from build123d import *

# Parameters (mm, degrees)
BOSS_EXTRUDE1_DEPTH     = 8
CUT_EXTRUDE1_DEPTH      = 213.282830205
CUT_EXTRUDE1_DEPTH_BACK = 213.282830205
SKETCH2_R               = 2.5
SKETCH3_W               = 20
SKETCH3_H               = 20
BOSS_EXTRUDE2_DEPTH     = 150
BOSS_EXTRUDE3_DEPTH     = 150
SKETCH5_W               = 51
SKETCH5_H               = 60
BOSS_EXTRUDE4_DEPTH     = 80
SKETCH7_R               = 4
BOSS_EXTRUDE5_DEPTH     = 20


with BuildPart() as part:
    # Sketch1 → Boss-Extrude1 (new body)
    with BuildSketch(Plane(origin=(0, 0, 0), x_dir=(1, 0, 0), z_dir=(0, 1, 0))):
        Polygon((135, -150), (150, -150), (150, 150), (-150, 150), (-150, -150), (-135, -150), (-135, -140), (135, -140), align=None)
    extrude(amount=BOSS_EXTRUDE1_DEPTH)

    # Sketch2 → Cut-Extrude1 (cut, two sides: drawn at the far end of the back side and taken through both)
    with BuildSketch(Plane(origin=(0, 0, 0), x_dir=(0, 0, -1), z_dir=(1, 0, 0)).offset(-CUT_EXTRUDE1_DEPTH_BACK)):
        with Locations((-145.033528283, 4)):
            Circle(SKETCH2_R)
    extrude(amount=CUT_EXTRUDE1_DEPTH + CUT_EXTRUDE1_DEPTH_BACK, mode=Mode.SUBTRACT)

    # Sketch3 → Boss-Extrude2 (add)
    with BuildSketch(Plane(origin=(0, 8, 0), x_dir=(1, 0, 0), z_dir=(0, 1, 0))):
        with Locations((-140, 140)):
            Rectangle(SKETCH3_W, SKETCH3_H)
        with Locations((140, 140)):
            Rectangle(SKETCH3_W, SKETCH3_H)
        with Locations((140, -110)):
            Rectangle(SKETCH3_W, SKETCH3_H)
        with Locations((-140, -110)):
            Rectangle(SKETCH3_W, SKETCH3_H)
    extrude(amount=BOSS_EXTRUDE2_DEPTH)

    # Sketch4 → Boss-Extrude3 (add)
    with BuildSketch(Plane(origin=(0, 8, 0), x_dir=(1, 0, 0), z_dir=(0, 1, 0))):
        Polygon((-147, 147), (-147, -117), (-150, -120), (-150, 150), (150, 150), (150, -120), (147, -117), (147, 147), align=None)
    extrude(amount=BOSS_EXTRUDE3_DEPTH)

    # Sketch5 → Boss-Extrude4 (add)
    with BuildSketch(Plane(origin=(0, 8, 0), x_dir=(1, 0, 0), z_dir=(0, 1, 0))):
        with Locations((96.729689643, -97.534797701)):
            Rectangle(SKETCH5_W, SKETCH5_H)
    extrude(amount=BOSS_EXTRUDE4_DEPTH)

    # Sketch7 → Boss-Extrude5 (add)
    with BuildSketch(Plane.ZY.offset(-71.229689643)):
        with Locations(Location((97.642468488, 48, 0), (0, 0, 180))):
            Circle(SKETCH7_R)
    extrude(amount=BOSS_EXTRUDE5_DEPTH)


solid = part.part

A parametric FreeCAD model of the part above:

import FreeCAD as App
import Part
import Sketcher
Q = App.Units.Quantity


def add_polygon(sketch, points):
    """Adds a closed chain of lines whose ends are joined by coincident constraints."""
    first, n = sketch.GeometryCount, len(points)
    for a, b in zip(points, points[1:] + points[:1]):
        sketch.addGeometry(Part.LineSegment(App.Vector(*a, 0), App.Vector(*b, 0)), False)
    for i in range(n):
        sketch.addConstraint(Sketcher.Constraint("Coincident", first + i, 2, first + (i + 1) % n, 1))

doc = App.newDocument("Part")
params = doc.addObject("Spreadsheet::Sheet", "Params")
for row, (alias, value) in enumerate([
    ("sketch1_width", "15 mm"),
    ("sketch1_width2", "300 mm"),
    ("sketch1_height", "10 mm"),
    ("pad1_length", "8 mm"),
    ("sketch2_diameter", "5 mm"),
    ("sketch3_width", "20 mm"),
    ("pad2_length", "150 mm"),
    ("sketch4_width", "294 mm"),
    ("sketch4_width2", "300 mm"),
    ("sketch4_height", "264 mm"),
    ("sketch4_height2", "270 mm"),
    ("pad3_length", "150 mm"),
    ("sketch5_width", "51 mm"),
    ("sketch5_height", "60 mm"),
    ("pad4_length", "80 mm"),
    ("sketch6_diameter", "8 mm"),
    ("pad5_length", "20 mm"),
], start=1):
    params.set(f"A{row}", alias)
    params.set(f"B{row}", "=" + value)
    params.setAlias(f"B{row}", alias)

body = doc.addObject("PartDesign::Body", "Body")

sketch1 = doc.addObject("Sketcher::SketchObject", "Sketch")
body.addObject(sketch1)
sketch1.AttachmentSupport = (doc.XZ_Plane, [""])
sketch1.MapMode = "FlatFace"
add_polygon(sketch1, [(135, 150), (150, 150), (150, -150), (-150, -150), (-150, 150), (-135, 150), (-135, 140), (135, 140)])
sketch1.addConstraint([
    Sketcher.Constraint("Horizontal", 0),
    Sketcher.Constraint("Vertical", 1),
    Sketcher.Constraint("Horizontal", 2),
    Sketcher.Constraint("Vertical", 3),
    Sketcher.Constraint("Horizontal", 4),
    Sketcher.Constraint("Vertical", 5),
    Sketcher.Constraint("Horizontal", 6),
    Sketcher.Constraint("Vertical", 7),
    Sketcher.Constraint("Symmetric", 0, 2, 2, 2, -1, 1),
    Sketcher.Constraint("Symmetric", 4, 2, 7, 2, -2),
    Sketcher.Constraint("Equal", 2, 1),
    Sketcher.Constraint("DistanceX", 0, 1, 0, 2, Q("15 mm")),
    Sketcher.Constraint("DistanceX", 2, 2, 2, 1, Q("300 mm")),
    Sketcher.Constraint("DistanceY", 5, 2, 5, 1, Q("10 mm")),
])
sketch1.setExpression("Constraints[19]", "Params.sketch1_width")
sketch1.setExpression("Constraints[20]", "Params.sketch1_width2")
sketch1.setExpression("Constraints[21]", "Params.sketch1_height")
pad1 = doc.addObject("PartDesign::Pad", "Pad")
body.addObject(pad1)
pad1.Profile = sketch1
pad1.setExpression("Length", "Params.pad1_length")
pad1.Reversed = True

sketch2 = doc.addObject("Sketcher::SketchObject", "Sketch001")
body.addObject(sketch2)
sketch2.AttachmentSupport = (doc.YZ_Plane, [""])
sketch2.MapMode = "FlatFace"
sketch2.addGeometry(Part.Circle(App.Vector(4, 145, 0), App.Vector(0, 0, 1), 2.5), False)
sketch2.addConstraint([
    Sketcher.Constraint("Diameter", 0, Q("5 mm")),
    Sketcher.Constraint("DistanceX", -1, 1, 0, 3, Q("4 mm")),
    Sketcher.Constraint("DistanceY", -1, 1, 0, 3, Q("145.033528 mm")),
])
sketch2.setExpression("Constraints[0]", "Params.sketch2_diameter")
pocket1 = doc.addObject("PartDesign::Pocket", "Pocket")
body.addObject(pocket1)
pocket1.Profile = sketch2
pocket1.Type = "ThroughAll"
pocket1.Midplane = True

sketch3 = doc.addObject("Sketcher::SketchObject", "Sketch002")
body.addObject(sketch3)
sketch3.AttachmentSupport = (doc.XZ_Plane, [""])
sketch3.MapMode = "FlatFace"
sketch3.AttachmentOffset = App.Placement(App.Vector(0, 0, -8), App.Rotation())
add_polygon(sketch3, [(-150, -150), (-150, -130), (-130, -130), (-130, -150)])
add_polygon(sketch3, [(130, -150), (130, -130), (150, -130), (150, -150)])
add_polygon(sketch3, [(130, 100), (130, 120), (150, 120), (150, 100)])
add_polygon(sketch3, [(-150, 100), (-150, 120), (-130, 120), (-130, 100)])
sketch3.addConstraint([
    Sketcher.Constraint("Vertical", 0),
    Sketcher.Constraint("Horizontal", 1),
    Sketcher.Constraint("Vertical", 2),
    Sketcher.Constraint("Horizontal", 3),
    Sketcher.Constraint("Vertical", 4),
    Sketcher.Constraint("Horizontal", 5),
    Sketcher.Constraint("Vertical", 6),
    Sketcher.Constraint("Horizontal", 7),
    Sketcher.Constraint("Vertical", 8),
    Sketcher.Constraint("Horizontal", 9),
    Sketcher.Constraint("Vertical", 10),
    Sketcher.Constraint("Horizontal", 11),
    Sketcher.Constraint("Vertical", 12),
    Sketcher.Constraint("Horizontal", 13),
    Sketcher.Constraint("Vertical", 14),
    Sketcher.Constraint("Horizontal", 15),
    Sketcher.Constraint("Symmetric", 1, 2, 4, 2, -2),
    Sketcher.Constraint("Symmetric", 3, 2, 6, 2, -2),
    Sketcher.Constraint("Symmetric", 9, 2, 12, 2, -2),
    Sketcher.Constraint("Symmetric", 11, 2, 14, 2, -2),
    Sketcher.Constraint("Vertical", 7, 2, 8, 2),
    Sketcher.Constraint("Vertical", 6, 2, 9, 2),
    Sketcher.Constraint("Equal", 15, 0),
    Sketcher.Constraint("Equal", 6, 8),
    Sketcher.Constraint("DistanceX", 1, 1, 1, 2, Q("20 mm")),
    Sketcher.Constraint("DistanceX", 0, 2, -1, 1, Q("150 mm")),
    Sketcher.Constraint("DistanceY", 0, 2, -1, 1, Q("130 mm")),
    Sketcher.Constraint("DistanceY", -1, 1, 8, 2, Q("120 mm")),
])
sketch3.setExpression("Constraints[40]", "Params.sketch3_width")
pad2 = doc.addObject("PartDesign::Pad", "Pad001")
body.addObject(pad2)
pad2.Profile = sketch3
pad2.setExpression("Length", "Params.pad2_length")
pad2.Reversed = True

sketch4 = doc.addObject("Sketcher::SketchObject", "Sketch003")
body.addObject(sketch4)
sketch4.AttachmentSupport = (doc.XZ_Plane, [""])
sketch4.MapMode = "FlatFace"
sketch4.AttachmentOffset = App.Placement(App.Vector(0, 0, -8), App.Rotation())
add_polygon(sketch4, [(-147, 117), (-147, -147), (147, -147), (147, 117), (150, 120), (150, -150), (-150, -150), (-150, 120)])
sketch4.addConstraint([
    Sketcher.Constraint("Vertical", 0),
    Sketcher.Constraint("Horizontal", 1),
    Sketcher.Constraint("Vertical", 2),
    Sketcher.Constraint("Vertical", 4),
    Sketcher.Constraint("Horizontal", 5),
    Sketcher.Constraint("Vertical", 6),
    Sketcher.Constraint("Symmetric", 3, 2, 6, 2, -2),
    Sketcher.Constraint("Symmetric", 2, 2, 7, 2, -2),
    Sketcher.Constraint("Perpendicular", 3, 7),
    Sketcher.Constraint("DistanceX", 1, 1, 1, 2, Q("294 mm")),
    Sketcher.Constraint("DistanceX", 5, 2, 5, 1, Q("300 mm")),
    Sketcher.Constraint("DistanceY", 0, 2, 0, 1, Q("264 mm")),
    Sketcher.Constraint("DistanceY", 4, 2, 4, 1, Q("270 mm")),
    Sketcher.Constraint("DistanceY", 0, 2, -1, 1, Q("147 mm")),
])
sketch4.setExpression("Constraints[17]", "Params.sketch4_width")
sketch4.setExpression("Constraints[18]", "Params.sketch4_width2")
sketch4.setExpression("Constraints[19]", "Params.sketch4_height")
sketch4.setExpression("Constraints[20]", "Params.sketch4_height2")
pad3 = doc.addObject("PartDesign::Pad", "Pad002")
body.addObject(pad3)
pad3.Profile = sketch4
pad3.setExpression("Length", "Params.pad3_length")
pad3.Reversed = True

sketch5 = doc.addObject("Sketcher::SketchObject", "Sketch004")
body.addObject(sketch5)
sketch5.AttachmentSupport = (doc.XZ_Plane, [""])
sketch5.MapMode = "FlatFace"
sketch5.AttachmentOffset = App.Placement(App.Vector(0, 0, -8), App.Rotation())
add_polygon(sketch5, [(71, 68), (71, 128), (122, 128), (122, 68)])
sketch5.addConstraint([
    Sketcher.Constraint("Vertical", 0),
    Sketcher.Constraint("Horizontal", 1),
    Sketcher.Constraint("Vertical", 2),
    Sketcher.Constraint("Horizontal", 3),
    Sketcher.Constraint("DistanceX", 1, 1, 1, 2, Q("51 mm")),
    Sketcher.Constraint("DistanceY", 0, 1, 0, 2, Q("60 mm")),
    Sketcher.Constraint("DistanceX", -1, 1, 0, 2, Q("71.22969 mm")),
    Sketcher.Constraint("DistanceY", -1, 1, 0, 2, Q("127.534798 mm")),
])
sketch5.setExpression("Constraints[8]", "Params.sketch5_width")
sketch5.setExpression("Constraints[9]", "Params.sketch5_height")
pad4 = doc.addObject("PartDesign::Pad", "Pad003")
body.addObject(pad4)
pad4.Profile = sketch5
pad4.setExpression("Length", "Params.pad4_length")
pad4.Reversed = True

sketch6 = doc.addObject("Sketcher::SketchObject", "Sketch005")
body.addObject(sketch6)
sketch6.AttachmentSupport = (doc.YZ_Plane, [""])
sketch6.MapMode = "FlatFace"
sketch6.AttachmentOffset = App.Placement(App.Vector(0, 0, 71.22969), App.Rotation())
sketch6.addGeometry(Part.Circle(App.Vector(48, 97.6, 0), App.Vector(0, 0, 1), 4), False)
sketch6.addConstraint([
    Sketcher.Constraint("Diameter", 0, Q("8 mm")),
    Sketcher.Constraint("DistanceX", -1, 1, 0, 3, Q("48 mm")),
    Sketcher.Constraint("DistanceY", -1, 1, 0, 3, Q("97.642468 mm")),
])
sketch6.setExpression("Constraints[0]", "Params.sketch6_diameter")
pad5 = doc.addObject("PartDesign::Pad", "Pad004")
body.addObject(pad5)
pad5.Profile = sketch6
pad5.setExpression("Length", "Params.pad5_length")
pad5.Reversed = True

doc.recompute()
